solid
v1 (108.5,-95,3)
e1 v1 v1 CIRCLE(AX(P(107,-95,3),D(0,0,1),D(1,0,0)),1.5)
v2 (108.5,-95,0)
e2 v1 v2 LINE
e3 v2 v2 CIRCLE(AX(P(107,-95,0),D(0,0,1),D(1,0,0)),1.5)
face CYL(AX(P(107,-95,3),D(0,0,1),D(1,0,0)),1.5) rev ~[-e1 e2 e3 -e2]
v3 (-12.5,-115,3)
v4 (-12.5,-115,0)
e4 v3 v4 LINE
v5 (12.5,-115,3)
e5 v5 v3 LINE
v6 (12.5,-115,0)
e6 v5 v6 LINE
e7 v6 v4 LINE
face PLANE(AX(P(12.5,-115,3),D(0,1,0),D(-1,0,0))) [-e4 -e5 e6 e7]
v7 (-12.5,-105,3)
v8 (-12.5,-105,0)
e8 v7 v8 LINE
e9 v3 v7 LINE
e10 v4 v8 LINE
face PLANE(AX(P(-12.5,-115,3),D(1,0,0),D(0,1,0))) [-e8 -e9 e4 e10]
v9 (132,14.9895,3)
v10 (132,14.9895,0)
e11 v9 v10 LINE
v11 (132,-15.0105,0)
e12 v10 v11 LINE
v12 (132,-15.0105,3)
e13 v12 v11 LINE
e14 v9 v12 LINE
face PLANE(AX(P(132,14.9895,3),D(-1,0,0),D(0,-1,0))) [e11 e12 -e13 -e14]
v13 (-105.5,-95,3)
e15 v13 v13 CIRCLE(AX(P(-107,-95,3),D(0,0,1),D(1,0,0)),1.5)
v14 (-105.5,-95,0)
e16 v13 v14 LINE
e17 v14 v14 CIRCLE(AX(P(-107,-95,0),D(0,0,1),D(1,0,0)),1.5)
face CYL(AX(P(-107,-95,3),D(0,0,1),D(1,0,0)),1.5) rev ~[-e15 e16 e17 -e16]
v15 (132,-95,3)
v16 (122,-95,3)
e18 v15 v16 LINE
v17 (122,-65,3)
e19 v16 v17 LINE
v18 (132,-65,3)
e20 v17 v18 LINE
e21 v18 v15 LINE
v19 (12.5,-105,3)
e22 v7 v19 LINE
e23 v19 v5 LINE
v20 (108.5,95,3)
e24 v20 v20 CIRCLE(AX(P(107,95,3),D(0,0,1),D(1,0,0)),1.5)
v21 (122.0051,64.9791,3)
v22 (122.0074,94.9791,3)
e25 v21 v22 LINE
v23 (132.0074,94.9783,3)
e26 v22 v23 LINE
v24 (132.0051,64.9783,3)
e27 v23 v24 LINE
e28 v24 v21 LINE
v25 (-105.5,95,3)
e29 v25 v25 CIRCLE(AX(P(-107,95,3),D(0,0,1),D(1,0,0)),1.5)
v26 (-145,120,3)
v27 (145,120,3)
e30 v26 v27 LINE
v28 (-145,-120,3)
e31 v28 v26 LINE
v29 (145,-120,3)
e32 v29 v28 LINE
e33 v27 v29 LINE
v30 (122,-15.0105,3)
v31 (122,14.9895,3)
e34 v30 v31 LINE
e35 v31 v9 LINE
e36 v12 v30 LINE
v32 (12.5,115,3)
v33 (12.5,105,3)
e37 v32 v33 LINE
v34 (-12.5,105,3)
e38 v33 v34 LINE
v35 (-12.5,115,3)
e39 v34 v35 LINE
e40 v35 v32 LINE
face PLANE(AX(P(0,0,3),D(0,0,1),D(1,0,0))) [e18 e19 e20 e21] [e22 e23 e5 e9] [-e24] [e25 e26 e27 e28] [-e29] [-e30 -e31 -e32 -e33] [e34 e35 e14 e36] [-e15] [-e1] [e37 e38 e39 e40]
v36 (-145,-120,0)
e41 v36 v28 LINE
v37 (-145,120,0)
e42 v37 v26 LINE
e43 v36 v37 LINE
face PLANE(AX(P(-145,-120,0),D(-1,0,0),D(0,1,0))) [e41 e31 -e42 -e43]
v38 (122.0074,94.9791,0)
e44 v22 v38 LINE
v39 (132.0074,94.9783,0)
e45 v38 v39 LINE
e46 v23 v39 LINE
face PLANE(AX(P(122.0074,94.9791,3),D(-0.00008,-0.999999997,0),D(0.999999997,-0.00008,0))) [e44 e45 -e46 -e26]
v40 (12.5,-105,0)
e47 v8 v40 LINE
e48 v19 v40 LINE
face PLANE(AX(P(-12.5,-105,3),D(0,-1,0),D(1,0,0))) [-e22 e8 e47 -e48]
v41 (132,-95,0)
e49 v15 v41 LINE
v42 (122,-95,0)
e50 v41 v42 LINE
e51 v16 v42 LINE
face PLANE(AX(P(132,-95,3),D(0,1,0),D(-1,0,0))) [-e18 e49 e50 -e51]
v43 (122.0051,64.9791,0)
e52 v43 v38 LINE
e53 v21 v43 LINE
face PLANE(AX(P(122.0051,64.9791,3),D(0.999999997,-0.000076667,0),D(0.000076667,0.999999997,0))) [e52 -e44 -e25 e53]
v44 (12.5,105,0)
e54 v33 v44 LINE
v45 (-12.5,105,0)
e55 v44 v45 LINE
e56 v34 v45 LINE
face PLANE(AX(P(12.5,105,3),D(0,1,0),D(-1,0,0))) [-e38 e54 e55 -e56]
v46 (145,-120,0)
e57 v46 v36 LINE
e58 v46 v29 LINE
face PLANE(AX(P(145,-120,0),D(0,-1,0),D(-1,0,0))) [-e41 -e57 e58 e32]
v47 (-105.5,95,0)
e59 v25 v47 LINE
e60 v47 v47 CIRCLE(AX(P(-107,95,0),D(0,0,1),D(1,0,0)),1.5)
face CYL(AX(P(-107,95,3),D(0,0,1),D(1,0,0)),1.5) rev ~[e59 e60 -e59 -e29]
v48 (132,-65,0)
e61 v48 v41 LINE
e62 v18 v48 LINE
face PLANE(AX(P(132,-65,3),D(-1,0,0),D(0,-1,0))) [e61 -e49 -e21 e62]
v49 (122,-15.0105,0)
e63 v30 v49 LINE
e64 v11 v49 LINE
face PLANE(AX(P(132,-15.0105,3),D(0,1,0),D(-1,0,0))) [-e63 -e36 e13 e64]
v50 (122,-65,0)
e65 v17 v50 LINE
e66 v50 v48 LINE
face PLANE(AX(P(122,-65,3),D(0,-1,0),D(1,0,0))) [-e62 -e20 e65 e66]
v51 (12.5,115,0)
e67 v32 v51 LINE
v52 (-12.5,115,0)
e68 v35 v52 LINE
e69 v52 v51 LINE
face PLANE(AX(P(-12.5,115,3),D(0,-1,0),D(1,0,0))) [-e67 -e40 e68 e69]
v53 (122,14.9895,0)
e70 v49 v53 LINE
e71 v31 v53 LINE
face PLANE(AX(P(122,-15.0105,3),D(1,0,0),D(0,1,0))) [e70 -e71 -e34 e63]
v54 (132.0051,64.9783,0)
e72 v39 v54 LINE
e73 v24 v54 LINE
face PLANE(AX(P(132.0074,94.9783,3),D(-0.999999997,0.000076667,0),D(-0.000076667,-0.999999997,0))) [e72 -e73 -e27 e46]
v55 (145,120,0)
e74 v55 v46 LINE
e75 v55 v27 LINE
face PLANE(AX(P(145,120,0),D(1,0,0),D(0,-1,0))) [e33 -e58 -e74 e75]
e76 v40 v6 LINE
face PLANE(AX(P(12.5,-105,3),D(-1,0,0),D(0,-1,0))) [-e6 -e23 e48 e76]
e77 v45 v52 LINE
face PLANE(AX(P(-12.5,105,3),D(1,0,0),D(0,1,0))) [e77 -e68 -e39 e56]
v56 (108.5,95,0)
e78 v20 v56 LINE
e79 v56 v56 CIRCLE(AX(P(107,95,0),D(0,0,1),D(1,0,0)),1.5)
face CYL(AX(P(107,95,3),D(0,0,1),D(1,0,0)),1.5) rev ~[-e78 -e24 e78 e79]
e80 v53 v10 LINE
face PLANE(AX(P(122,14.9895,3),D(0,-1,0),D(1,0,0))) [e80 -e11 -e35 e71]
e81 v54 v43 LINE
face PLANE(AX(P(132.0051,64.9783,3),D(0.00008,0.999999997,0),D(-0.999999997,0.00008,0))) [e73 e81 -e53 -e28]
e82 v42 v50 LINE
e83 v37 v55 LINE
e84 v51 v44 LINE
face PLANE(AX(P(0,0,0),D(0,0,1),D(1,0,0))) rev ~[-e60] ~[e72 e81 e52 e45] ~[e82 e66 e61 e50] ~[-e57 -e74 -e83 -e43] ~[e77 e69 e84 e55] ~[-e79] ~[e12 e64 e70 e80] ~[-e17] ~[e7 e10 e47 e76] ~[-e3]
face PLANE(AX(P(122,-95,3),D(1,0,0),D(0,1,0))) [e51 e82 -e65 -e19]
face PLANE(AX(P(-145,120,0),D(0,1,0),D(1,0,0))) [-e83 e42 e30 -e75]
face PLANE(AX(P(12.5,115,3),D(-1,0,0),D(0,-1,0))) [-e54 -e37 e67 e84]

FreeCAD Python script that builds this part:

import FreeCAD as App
import Part
import Sketcher

V = App.Vector

doc = App.newDocument("Part")
body = doc.addObject("PartDesign::Body", "Body")

# Sketch on XY plane
sketch1 = body.newObject("Sketcher::SketchObject", "Sketch")
sketch1.AttachmentSupport = (doc.getObject("XY_Plane"), [""])
sketch1.MapMode = "FlatFace"
sketch1.addGeometry(Part.LineSegment(V(145, 120, 0), V(-145, 120, 0)), False)
sketch1.addGeometry(Part.LineSegment(V(-145, 120, 0), V(-145, -120, 0)), False)
sketch1.addGeometry(Part.LineSegment(V(-145, -120, 0), V(145, -120, 0)), False)
sketch1.addGeometry(Part.LineSegment(V(145, -120, 0), V(145, 120, 0)), False)
sketch1.addConstraint(Sketcher.Constraint("Coincident", 0, 2, 1, 1))
sketch1.addConstraint(Sketcher.Constraint("Coincident", 1, 2, 2, 1))
sketch1.addConstraint(Sketcher.Constraint("Coincident", 2, 2, 3, 1))
sketch1.addConstraint(Sketcher.Constraint("Coincident", 3, 2, 0, 1))
sketch1.addConstraint(Sketcher.Constraint("Horizontal", 0))
sketch1.addConstraint(Sketcher.Constraint("Vertical", 1))
sketch1.addConstraint(Sketcher.Constraint("Horizontal", 2))
sketch1.addConstraint(Sketcher.Constraint("Vertical", 3))
sketch1.addConstraint(Sketcher.Constraint("Symmetric", 0, 2, 2, 2, -1, 1))
sketch1.addConstraint(Sketcher.Constraint("DistanceX", 0, 2, 0, 1, 290.0))
sketch1.addConstraint(Sketcher.Constraint("DistanceY", 1, 2, 1, 1, 240.0))
pad1 = body.newObject("PartDesign::Pad", "Pad")
pad1.Profile = sketch1
pad1.Length = 3

# Sketch on XY plane
sketch2 = body.newObject("Sketcher::SketchObject", "Sketch001")
sketch2.AttachmentSupport = (doc.getObject("XY_Plane"), [""])
sketch2.MapMode = "FlatFace"
sketch2.AttachmentOffset = App.Placement(V(0, 0, 3), App.Rotation())
sketch2.addGeometry(Part.LineSegment(V(-12.5, 105, 0), V(12.5, 105, 0)), False)
sketch2.addGeometry(Part.LineSegment(V(12.5, 105, 0), V(12.5, 115, 0)), False)
sketch2.addGeometry(Part.LineSegment(V(12.5, 115, 0), V(-12.5, 115, 0)), False)
sketch2.addGeometry(Part.LineSegment(V(-12.5, 115, 0), V(-12.5, 105, 0)), False)
sketch2.addGeometry(Part.LineSegment(V(122, 15, 0), V(122, -15, 0)), False)
sketch2.addGeometry(Part.LineSegment(V(122, -15, 0), V(132, -15, 0)), False)
sketch2.addGeometry(Part.LineSegment(V(132, -15, 0), V(132, 15, 0)), False)
sketch2.addGeometry(Part.LineSegment(V(132, 15, 0), V(122, 15, 0)), False)
sketch2.addGeometry(Part.LineSegment(V(132, 95, 0), V(122, 95, 0)), False)
sketch2.addGeometry(Part.LineSegment(V(122, 95, 0), V(122, 65, 0)), False)
sketch2.addGeometry(Part.LineSegment(V(122, 65, 0), V(132, 65, 0)), False)
sketch2.addGeometry(Part.LineSegment(V(132, 65, 0), V(132, 95, 0)), False)
sketch2.addGeometry(Part.LineSegment(V(12.5, -115, 0), V(12.5, -105, 0)), False)
sketch2.addGeometry(Part.LineSegment(V(12.5, -105, 0), V(-12.5, -105, 0)), False)
sketch2.addGeometry(Part.LineSegment(V(-12.5, -105, 0), V(-12.5, -115, 0)), False)
sketch2.addGeometry(Part.LineSegment(V(-12.5, -115, 0), V(12.5, -115, 0)), False)
sketch2.addGeometry(Part.Circle(V(-107, 95, 0), V(0, 0, 1), 1.5), False)
sketch2.addGeometry(Part.Circle(V(107, -95, 0), V(0, 0, 1), 1.5), False)
sketch2.addGeometry(Part.Circle(V(107, 95, 0), V(0, 0, 1), 1.5), False)
sketch2.addGeometry(Part.LineSegment(V(132, -65, 0), V(122, -65, 0)), False)
sketch2.addGeometry(Part.LineSegment(V(122, -65, 0), V(122, -95, 0)), False)
sketch2.addGeometry(Part.LineSegment(V(122, -95, 0), V(132, -95, 0)), False)
sketch2.addGeometry(Part.LineSegment(V(132, -95, 0), V(132, -65, 0)), False)
sketch2.addGeometry(Part.Circle(V(-107, -95, 0), V(0, 0, 1), 1.5), False)
sketch2.addConstraint(Sketcher.Constraint("Coincident", 0, 2, 1, 1))
sketch2.addConstraint(Sketcher.Constraint("Coincident", 1, 2, 2, 1))
sketch2.addConstraint(Sketcher.Constraint("Coincident", 2, 2, 3, 1))
sketch2.addConstraint(Sketcher.Constraint("Coincident", 3, 2, 0, 1))
sketch2.addConstraint(Sketcher.Constraint("Coincident", 4, 2, 5, 1))
sketch2.addConstraint(Sketcher.Constraint("Coincident", 5, 2, 6, 1))
sketch2.addConstraint(Sketcher.Constraint("Coincident", 6, 2, 7, 1))
sketch2.addConstraint(Sketcher.Constraint("Coincident", 7, 2, 4, 1))
sketch2.addConstraint(Sketcher.Constraint("Coincident", 8, 2, 9, 1))
sketch2.addConstraint(Sketcher.Constraint("Coincident", 9, 2, 10, 1))
sketch2.addConstraint(Sketcher.Constraint("Coincident", 10, 2, 11, 1))
sketch2.addConstraint(Sketcher.Constraint("Coincident", 11, 2, 8, 1))
sketch2.addConstraint(Sketcher.Constraint("Coincident", 12, 2, 13, 1))
sketch2.addConstraint(Sketcher.Constraint("Coincident", 13, 2, 14, 1))
sketch2.addConstraint(Sketcher.Constraint("Coincident", 14, 2, 15, 1))
sketch2.addConstraint(Sketcher.Constraint("Coincident", 15, 2, 12, 1))
sketch2.addConstraint(Sketcher.Constraint("Coincident", 19, 2, 20, 1))
sketch2.addConstraint(Sketcher.Constraint("Coincident", 20, 2, 21, 1))
sketch2.addConstraint(Sketcher.Constraint("Coincident", 21, 2, 22, 1))
sketch2.addConstraint(Sketcher.Constraint("Coincident", 22, 2, 19, 1))
sketch2.addConstraint(Sketcher.Constraint("Horizontal", 0))
sketch2.addConstraint(Sketcher.Constraint("Vertical", 1))
sketch2.addConstraint(Sketcher.Constraint("Horizontal", 2))
sketch2.addConstraint(Sketcher.Constraint("Vertical", 3))
sketch2.addConstraint(Sketcher.Constraint("Vertical", 4))
sketch2.addConstraint(Sketcher.Constraint("Horizontal", 5))
sketch2.addConstraint(Sketcher.Constraint("Vertical", 6))
sketch2.addConstraint(Sketcher.Constraint("Horizontal", 7))
sketch2.addConstraint(Sketcher.Constraint("Vertical", 12))
sketch2.addConstraint(Sketcher.Constraint("Horizontal", 13))
sketch2.addConstraint(Sketcher.Constraint("Vertical", 14))
sketch2.addConstraint(Sketcher.Constraint("Horizontal", 15))
sketch2.addConstraint(Sketcher.Constraint("Horizontal", 19))
sketch2.addConstraint(Sketcher.Constraint("Vertical", 20))
sketch2.addConstraint(Sketcher.Constraint("Horizontal", 21))
sketch2.addConstraint(Sketcher.Constraint("Vertical", 22))
sketch2.addConstraint(Sketcher.Constraint("Equal", 16, 17))
sketch2.addConstraint(Sketcher.Constraint("Equal", 17, 18))
sketch2.addConstraint(Sketcher.Constraint("Equal", 18, 23))
sketch2.addConstraint(Sketcher.Constraint("Symmetric", 16, 3, 17, 3, -1, 1))
sketch2.addConstraint(Sketcher.Constraint("Symmetric", 18, 3, 23, 3, -1, 1))
sketch2.addConstraint(Sketcher.Constraint("Symmetric", 3, 2, 12, 2, -1, 1))
sketch2.addConstraint(Sketcher.Constraint("Symmetric", 1, 2, 14, 2, -1, 1))
sketch2.addConstraint(Sketcher.Constraint("Symmetric", 16, 3, 18, 3, -2))
sketch2.addConstraint(Sketcher.Constraint("Perpendicular", 8, 9))
sketch2.addConstraint(Sketcher.Constraint("Perpendicular", 9, 10))
sketch2.addConstraint(Sketcher.Constraint("Perpendicular", 10, 11))
sketch2.addConstraint(Sketcher.Constraint("Horizontal", 23, 3, 20, 2))
sketch2.addConstraint(Sketcher.Constraint("Vertical", 1, 2, 12, 2))
sketch2.addConstraint(Sketcher.Constraint("Vertical", 7, 2, 19, 2))
sketch2.addConstraint(Sketcher.Constraint("Vertical", 6, 2, 21, 2))
sketch2.addConstraint(Sketcher.Constraint("Equal", 21, 1))
sketch2.addConstraint(Sketcher.Constraint("Equal", 6, 20))
sketch2.addConstraint(Sketcher.Constraint("Diameter", 16, 3.0))
sketch2.addConstraint(Sketcher.Constraint("DistanceX", 0, 1, 0, 2, 25.0))
sketch2.addConstraint(Sketcher.Constraint("DistanceX", 5, 1, 5, 2, 10.0))
sketch2.addConstraint(Sketcher.Constraint("DistanceY", 4, 2, 4, 1, 30.0))
sketch2.addConstraint(Sketcher.Constraint("Distance", 8, 10.0))
sketch2.addConstraint(Sketcher.Constraint("Distance", 9, 30.0))
sketch2.addConstraint(Sketcher.Constraint("DistanceX", 16, 3, -1, 1, 107.0))
sketch2.addConstraint(Sketcher.Constraint("DistanceY", -1, 1, 16, 3, 95.0))
sketch2.addConstraint(Sketcher.Constraint("DistanceY", -1, 1, 0, 2, 105.0))
sketch2.addConstraint(Sketcher.Constraint("DistanceX", -1, 1, 4, 2, 122.0))
sketch2.addConstraint(Sketcher.Constraint("DistanceY", -1, 1, 8, 2, 94.979))
sketch2.addConstraint(Sketcher.Constraint("DistanceX", -1, 1, 9, 2, 122.005))
sketch2.addConstraint(Sketcher.Constraint("DistanceY", 4, 2, -1, 1, 15.0105))
sketch2.addConstraint(Sketcher.Constraint("DistanceX", -1, 1, 8, 2, 122.0074))
pocket1 = body.newObject("PartDesign::Pocket", "Pocket")
pocket1.Profile = sketch2
pocket1.Type = "ThroughAll"

doc.recompute()
